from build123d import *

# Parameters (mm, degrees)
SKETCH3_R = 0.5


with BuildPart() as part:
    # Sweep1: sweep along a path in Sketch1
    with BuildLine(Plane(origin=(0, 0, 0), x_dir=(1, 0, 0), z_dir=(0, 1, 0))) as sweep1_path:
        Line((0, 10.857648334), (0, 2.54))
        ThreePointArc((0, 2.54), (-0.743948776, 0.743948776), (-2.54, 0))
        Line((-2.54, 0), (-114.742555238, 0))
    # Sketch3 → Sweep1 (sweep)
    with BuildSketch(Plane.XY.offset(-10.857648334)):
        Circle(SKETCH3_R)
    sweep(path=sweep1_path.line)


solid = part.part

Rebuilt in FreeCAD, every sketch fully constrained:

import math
import FreeCAD as App
import Part
import Sketcher
from FreeCAD import Vector

doc = App.newDocument("Part")
body = doc.addObject("PartDesign::Body", "Body")

# Sketch on XY plane
sketch1 = doc.addObject("Sketcher::SketchObject", "Sketch")
body.addObject(sketch1)
sketch1.AttachmentSupport = (doc.XY_Plane, [""])
sketch1.MapMode = "FlatFace"
sketch1.AttachmentOffset = App.Placement(Vector(0, 0, -10.857648), App.Rotation())
sketch1.addGeometry(Part.Circle(Vector(0, 0, 0), Vector(0, 0, 1), 0.5), False)
sketch1.addConstraint(Sketcher.Constraint("Coincident", 0, 3, -1, 1))
sketch1.addConstraint(Sketcher.Constraint("Diameter", 0, 1.0))

# Sketch on XZ plane
sketch2 = doc.addObject("Sketcher::SketchObject", "Sketch001")
body.addObject(sketch2)
sketch2.AttachmentSupport = (doc.XZ_Plane, [""])
sketch2.MapMode = "FlatFace"
sketch2.addGeometry(Part.LineSegment(Vector(0, -10.857648, 0), Vector(0, -2.54, 0)), False)
sketch2.addGeometry(Part.ArcOfCircle(Part.Circle(Vector(-2.54, -2.54, 0), Vector(0, 0, 1), 2.54), math.radians(0), math.radians(90)), False)
sketch2.addGeometry(Part.LineSegment(Vector(-2.54, 0, 0), Vector(-114.742555, 0, 0)), False)
sketch2.addConstraint(Sketcher.Constraint("Tangent", 0, 2, 1, 1))
sketch2.addConstraint(Sketcher.Constraint("Tangent", 1, 2, 2, 1))
sketch2.addConstraint(Sketcher.Constraint("Vertical", 0))
sketch2.addConstraint(Sketcher.Constraint("Horizontal", 2))
sketch2.addConstraint(Sketcher.Constraint("PointOnObject", 0, 1, -2))
sketch2.addConstraint(Sketcher.Constraint("PointOnObject", 1, 2, -1))
sketch2.addConstraint(Sketcher.Constraint("Radius", 1, 2.54))
sketch2.addConstraint(Sketcher.Constraint("DistanceY", 0, 1, 0, 2, 8.317648))
sketch2.addConstraint(Sketcher.Constraint("DistanceX", 2, 2, 2, 1, 112.202555))
doc.recompute()

additivepipe = doc.addObject("PartDesign::AdditivePipe", "AdditivePipe")
body.addObject(additivepipe)
additivepipe.Profile = sketch1
additivepipe.Spine = (sketch2, ["Edge1", "Edge2", "Edge3"])

doc.recompute()
